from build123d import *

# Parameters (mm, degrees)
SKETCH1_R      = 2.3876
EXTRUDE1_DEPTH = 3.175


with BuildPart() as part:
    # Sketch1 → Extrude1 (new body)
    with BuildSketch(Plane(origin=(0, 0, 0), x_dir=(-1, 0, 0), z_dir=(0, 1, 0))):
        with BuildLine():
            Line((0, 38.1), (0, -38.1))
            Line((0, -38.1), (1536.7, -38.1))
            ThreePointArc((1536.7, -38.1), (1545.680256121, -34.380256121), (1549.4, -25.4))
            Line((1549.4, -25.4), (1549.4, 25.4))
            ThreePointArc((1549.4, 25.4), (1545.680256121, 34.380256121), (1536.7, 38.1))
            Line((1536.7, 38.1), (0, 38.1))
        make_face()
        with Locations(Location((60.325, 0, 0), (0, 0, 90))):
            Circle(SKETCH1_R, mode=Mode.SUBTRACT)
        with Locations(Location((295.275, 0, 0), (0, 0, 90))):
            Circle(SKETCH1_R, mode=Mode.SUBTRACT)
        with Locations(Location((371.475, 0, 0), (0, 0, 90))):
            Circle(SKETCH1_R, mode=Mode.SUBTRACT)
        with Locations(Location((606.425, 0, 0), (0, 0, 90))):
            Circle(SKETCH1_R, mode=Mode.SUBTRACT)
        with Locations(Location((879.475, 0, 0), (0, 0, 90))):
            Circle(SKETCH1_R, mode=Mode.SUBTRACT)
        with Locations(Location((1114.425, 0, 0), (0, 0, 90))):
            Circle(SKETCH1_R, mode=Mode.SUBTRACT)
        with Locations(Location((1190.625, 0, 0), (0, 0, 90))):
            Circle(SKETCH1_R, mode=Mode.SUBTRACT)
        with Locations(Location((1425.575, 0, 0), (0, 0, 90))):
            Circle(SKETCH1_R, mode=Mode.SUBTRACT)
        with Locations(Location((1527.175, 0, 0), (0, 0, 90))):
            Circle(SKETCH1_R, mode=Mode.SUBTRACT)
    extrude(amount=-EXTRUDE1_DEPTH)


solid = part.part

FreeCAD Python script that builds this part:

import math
import FreeCAD as App
import Part
import Sketcher
from FreeCAD import Vector
Q = App.Units.Quantity

doc = App.newDocument("Part")
body = doc.addObject("PartDesign::Body", "Body")

sketch1 = doc.addObject("Sketcher::SketchObject", "Sketch")
body.addObject(sketch1)
sketch1.AttachmentSupport = (doc.XZ_Plane, [""])
sketch1.MapMode = "FlatFace"
sketch1.addGeometry([
    Part.LineSegment(Vector(0, 38.1, 0), Vector(0, -38.1, 0)),
    Part.LineSegment(Vector(0, -38.1, 0), Vector(-1536.7, -38.1, 0)),
    Part.ArcOfCircle(Part.Circle(Vector(-1536.7, -25.4, 0), Vector(0, 0, 1), 12.7), math.radians(180), math.radians(270)),
    Part.LineSegment(Vector(-1549.4, -25.4, 0), Vector(-1549.4, 25.4, 0)),
    Part.ArcOfCircle(Part.Circle(Vector(-1536.7, 25.4, 0), Vector(0, 0, 1), 12.7), math.radians(90), math.radians(180)),
    Part.LineSegment(Vector(-1536.7, 38.1, 0), Vector(0, 38.1, 0)),
    Part.Circle(Vector(-60.3, 0, 0), Vector(0, 0, 1), 2.4),
    Part.Circle(Vector(-295.3, 0, 0), Vector(0, 0, 1), 2.4),
    Part.Circle(Vector(-371.5, 0, 0), Vector(0, 0, 1), 2.4),
    Part.Circle(Vector(-606.4, 0, 0), Vector(0, 0, 1), 2.4),
    Part.Circle(Vector(-879.5, 0, 0), Vector(0, 0, 1), 2.4),
    Part.Circle(Vector(-1114.4, 0, 0), Vector(0, 0, 1), 2.4),
    Part.Circle(Vector(-1190.6, 0, 0), Vector(0, 0, 1), 2.4),
    Part.Circle(Vector(-1425.6, 0, 0), Vector(0, 0, 1), 2.4),
    Part.Circle(Vector(-1527.2, 0, 0), Vector(0, 0, 1), 2.4),
], False)
sketch1.addConstraint([
    Sketcher.Constraint("Coincident", 0, 2, 1, 1),
    Sketcher.Constraint("Tangent", 1, 2, 2, 2),
    Sketcher.Constraint("Tangent", 2, 1, 3, 1),
    Sketcher.Constraint("Tangent", 3, 2, 4, 2),
    Sketcher.Constraint("Tangent", 4, 1, 5, 1),
    Sketcher.Constraint("Coincident", 5, 2, 0, 1),
    Sketcher.Constraint("Vertical", 0),
    Sketcher.Constraint("Horizontal", 1),
    Sketcher.Constraint("Vertical", 3),
    Sketcher.Constraint("Horizontal", 5),
    Sketcher.Constraint("Equal", 2, 4),
    Sketcher.Constraint("Equal", 6, 7),
    Sketcher.Constraint("Equal", 7, 8),
    Sketcher.Constraint("Equal", 8, 9),
    Sketcher.Constraint("Equal", 9, 10),
    Sketcher.Constraint("Equal", 10, 11),
    Sketcher.Constraint("Equal", 11, 12),
    Sketcher.Constraint("Equal", 12, 13),
    Sketcher.Constraint("Equal", 13, 14),
    Sketcher.Constraint("Symmetric", 0, 2, 5, 2, -1, 1),
    Sketcher.Constraint("PointOnObject", 6, 3, -1),
    Sketcher.Constraint("PointOnObject", 7, 3, -1),
    Sketcher.Constraint("PointOnObject", 8, 3, -1),
    Sketcher.Constraint("PointOnObject", 9, 3, -1),
    Sketcher.Constraint("PointOnObject", 10, 3, -1),
    Sketcher.Constraint("PointOnObject", 11, 3, -1),
    Sketcher.Constraint("PointOnObject", 12, 3, -1),
    Sketcher.Constraint("PointOnObject", 13, 3, -1),
    Sketcher.Constraint("PointOnObject", 14, 3, -1),
    Sketcher.Constraint("Radius", 2, Q("0.5 in")),
    Sketcher.Constraint("DistanceY", 0, 2, 0, 1, Q("3 in")),
    Sketcher.Constraint("Diameter", 6, Q("0.188 in")),
    Sketcher.Constraint("DistanceX", 1, 2, 1, 1, Q("60.5 in")),
    Sketcher.Constraint("DistanceX", 8, 3, 7, 3, Q("3 in")),
    Sketcher.Constraint("DistanceX", 10, 3, 8, 3, Q("20 in")),
    Sketcher.Constraint("DistanceX", 11, 3, 9, 3, Q("20 in")),
    Sketcher.Constraint("DistanceX", 12, 3, 11, 3, Q("3 in")),
    Sketcher.Constraint("DistanceX", 14, 3, 13, 3, Q("4 in")),
    Sketcher.Constraint("DistanceX", 9, 3, 6, 3, Q("21.5 in")),
    Sketcher.Constraint("DistanceX", 13, 3, 10, 3, Q("21.5 in")),
    Sketcher.Constraint("DistanceX", 7, 3, 6, 3, Q("9.25 in")),
    Sketcher.Constraint("DistanceX", 6, 3, -1, 1, Q("2.375 in")),
])
pad1 = doc.addObject("PartDesign::Pad", "Pad")
body.addObject(pad1)
pad1.Profile = sketch1
pad1.Length = Q("0.125 in")

doc.recompute()
